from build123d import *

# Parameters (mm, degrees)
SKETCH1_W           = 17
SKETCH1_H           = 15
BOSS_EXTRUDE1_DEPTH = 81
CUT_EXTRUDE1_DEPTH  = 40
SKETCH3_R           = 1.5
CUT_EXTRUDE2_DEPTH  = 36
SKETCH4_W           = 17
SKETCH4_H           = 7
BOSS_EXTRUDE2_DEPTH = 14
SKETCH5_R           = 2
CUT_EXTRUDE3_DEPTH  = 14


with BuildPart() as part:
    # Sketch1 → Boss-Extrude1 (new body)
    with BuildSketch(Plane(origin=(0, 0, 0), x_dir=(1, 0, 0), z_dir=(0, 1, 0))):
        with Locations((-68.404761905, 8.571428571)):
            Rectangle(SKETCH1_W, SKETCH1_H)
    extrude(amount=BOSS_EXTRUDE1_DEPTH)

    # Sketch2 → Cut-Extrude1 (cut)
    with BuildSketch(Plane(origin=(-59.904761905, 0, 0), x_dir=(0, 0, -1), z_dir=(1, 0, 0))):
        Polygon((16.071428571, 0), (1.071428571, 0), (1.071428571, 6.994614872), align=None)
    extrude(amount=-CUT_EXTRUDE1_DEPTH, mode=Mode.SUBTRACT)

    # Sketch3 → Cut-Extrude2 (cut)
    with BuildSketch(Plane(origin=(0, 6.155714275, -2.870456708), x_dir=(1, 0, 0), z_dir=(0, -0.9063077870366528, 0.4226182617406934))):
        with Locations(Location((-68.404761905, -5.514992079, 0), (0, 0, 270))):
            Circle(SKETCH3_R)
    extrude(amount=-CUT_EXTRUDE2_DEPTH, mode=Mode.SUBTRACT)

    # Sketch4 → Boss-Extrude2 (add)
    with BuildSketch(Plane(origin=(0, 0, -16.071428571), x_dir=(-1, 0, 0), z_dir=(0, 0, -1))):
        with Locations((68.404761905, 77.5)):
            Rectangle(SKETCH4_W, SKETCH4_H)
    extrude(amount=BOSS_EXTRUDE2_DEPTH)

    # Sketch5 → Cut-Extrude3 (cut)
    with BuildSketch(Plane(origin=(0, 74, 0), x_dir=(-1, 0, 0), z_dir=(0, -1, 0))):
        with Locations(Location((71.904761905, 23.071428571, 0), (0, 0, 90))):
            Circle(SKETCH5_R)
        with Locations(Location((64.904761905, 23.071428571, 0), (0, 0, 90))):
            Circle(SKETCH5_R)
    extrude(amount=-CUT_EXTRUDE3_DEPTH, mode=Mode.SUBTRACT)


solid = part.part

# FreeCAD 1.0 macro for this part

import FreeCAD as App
import Part
import Sketcher
Q = App.Units.Quantity


def add_polygon(sketch, points):
    """Adds a closed chain of lines whose ends are joined by coincident constraints."""
    first, n = sketch.GeometryCount, len(points)
    for a, b in zip(points, points[1:] + points[:1]):
        sketch.addGeometry(Part.LineSegment(App.Vector(*a, 0), App.Vector(*b, 0)), False)
    for i in range(n):
        sketch.addConstraint(Sketcher.Constraint("Coincident", first + i, 2, first + (i + 1) % n, 1))

doc = App.newDocument("Part")
body = doc.addObject("PartDesign::Body", "Body")

# Sketch on XZ plane
sketch1 = body.newObject("Sketcher::SketchObject", "Sketch")
sketch1.AttachmentSupport = (doc.getObject("XZ_Plane"), [""])
sketch1.MapMode = "FlatFace"
add_polygon(sketch1, [(-77, -16), (-77, -1), (-60, -1), (-60, -16)])  # lines 0-3
sketch1.addConstraint(Sketcher.Constraint("Vertical", 0))
sketch1.addConstraint(Sketcher.Constraint("Horizontal", 1))
sketch1.addConstraint(Sketcher.Constraint("Vertical", 2))
sketch1.addConstraint(Sketcher.Constraint("Horizontal", 3))
sketch1.addConstraint(Sketcher.Constraint("DistanceX", 1, 1, 1, 2, Q("17 mm")))
sketch1.addConstraint(Sketcher.Constraint("DistanceY", 0, 1, 0, 2, Q("15 mm")))
sketch1.addConstraint(Sketcher.Constraint("DistanceX", 0, 2, -1, 1, Q("76.904762 mm")))
sketch1.addConstraint(Sketcher.Constraint("DistanceY", 0, 2, -1, 1, Q("1.071429 mm")))
pad1 = body.newObject("PartDesign::Pad", "Pad")
pad1.Profile = sketch1
pad1.Length = 81
pad1.Reversed = True

# Sketch on YZ plane
sketch2 = body.newObject("Sketcher::SketchObject", "Sketch001")
sketch2.AttachmentSupport = (doc.getObject("YZ_Plane"), [""])
sketch2.MapMode = "FlatFace"
sketch2.AttachmentOffset = App.Placement(App.Vector(0, 0, -59.904762), App.Rotation())
add_polygon(sketch2, [(0, -1), (0, -16), (7, -1)])  # lines 0-2
sketch2.addConstraint(Sketcher.Constraint("Vertical", 0))
sketch2.addConstraint(Sketcher.Constraint("Horizontal", 2))
sketch2.addConstraint(Sketcher.Constraint("PointOnObject", 0, 2, -2))
sketch2.addConstraint(Sketcher.Constraint("DistanceY", 0, 2, 0, 1, Q("15 mm")))
sketch2.addConstraint(Sketcher.Constraint("Angle", 1, Q("65 deg")))
sketch2.addConstraint(Sketcher.Constraint("DistanceY", 0, 2, -1, 1, Q("16.071429 mm")))
pocket1 = body.newObject("PartDesign::Pocket", "Pocket")
pocket1.Profile = sketch2
pocket1.Length = 40

# Sketch on an angled plane
sketch3 = body.newObject("Sketcher::SketchObject", "Sketch002")
sketch3.Placement = App.Placement(App.Vector(0, 6.155714, -2.870457), App.Rotation(App.Vector(1, 0, 0), App.Vector(0, 0.422618262, 0.906307787), App.Vector(0, -0.906307787, 0.422618262), "ZXY"))
sketch3.addGeometry(Part.Circle(App.Vector(-68.4, -5.5, 0), App.Vector(0, 0, 1), 1.5), False)
sketch3.addConstraint(Sketcher.Constraint("Diameter", 0, Q("3 mm")))
sketch3.addConstraint(Sketcher.Constraint("DistanceX", 0, 3, -1, 1, Q("68.404762 mm")))
sketch3.addConstraint(Sketcher.Constraint("DistanceY", 0, 3, -1, 1, Q("5.514992 mm")))
pocket2 = body.newObject("PartDesign::Pocket", "Pocket001")
pocket2.Profile = sketch3
pocket2.Length = 36

# Sketch on XY plane
sketch4 = body.newObject("Sketcher::SketchObject", "Sketch003")
sketch4.AttachmentSupport = (doc.getObject("XY_Plane"), [""])
sketch4.MapMode = "FlatFace"
sketch4.AttachmentOffset = App.Placement(App.Vector(0, 0, -16.071429), App.Rotation())
add_polygon(sketch4, [(-60, 81), (-60, 74), (-77, 74), (-77, 81)])  # lines 0-3
sketch4.addConstraint(Sketcher.Constraint("Vertical", 0))
sketch4.addConstraint(Sketcher.Constraint("Horizontal", 1))
sketch4.addConstraint(Sketcher.Constraint("Vertical", 2))
sketch4.addConstraint(Sketcher.Constraint("Horizontal", 3))
sketch4.addConstraint(Sketcher.Constraint("DistanceX", 1, 2, 1, 1, Q("17 mm")))
sketch4.addConstraint(Sketcher.Constraint("DistanceY", 0, 2, 0, 1, Q("7 mm")))
sketch4.addConstraint(Sketcher.Constraint("DistanceY", -1, 1, 0, 2, Q("74 mm")))
sketch4.addConstraint(Sketcher.Constraint("DistanceX", 0, 2, -1, 1, Q("59.904762 mm")))
pad2 = body.newObject("PartDesign::Pad", "Pad001")
pad2.Profile = sketch4
pad2.Length = 14
pad2.Reversed = True

# Sketch on XZ plane
sketch5 = body.newObject("Sketcher::SketchObject", "Sketch004")
sketch5.AttachmentSupport = (doc.getObject("XZ_Plane"), [""])
sketch5.MapMode = "FlatFace"
sketch5.AttachmentOffset = App.Placement(App.Vector(0, 0, -74), App.Rotation())
sketch5.addGeometry(Part.Circle(App.Vector(-71.9, -23.1, 0), App.Vector(0, 0, 1), 2), False)
sketch5.addGeometry(Part.Circle(App.Vector(-64.9, -23.1, 0), App.Vector(0, 0, 1), 2), False)
sketch5.addConstraint(Sketcher.Constraint("Equal", 0, 1))
sketch5.addConstraint(Sketcher.Constraint("Horizontal", 0, 3, 1, 3))
sketch5.addConstraint(Sketcher.Constraint("Diameter", 0, Q("4 mm")))
sketch5.addConstraint(Sketcher.Constraint("DistanceX", 0, 3, 1, 3, Q("7 mm")))
sketch5.addConstraint(Sketcher.Constraint("DistanceX", 0, 3, -1, 1, Q("71.904762 mm")))
sketch5.addConstraint(Sketcher.Constraint("DistanceY", 0, 3, -1, 1, Q("23.071429 mm")))
pocket3 = body.newObject("PartDesign::Pocket", "Pocket002")
pocket3.Profile = sketch5
pocket3.Length = 14

doc.recompute()
